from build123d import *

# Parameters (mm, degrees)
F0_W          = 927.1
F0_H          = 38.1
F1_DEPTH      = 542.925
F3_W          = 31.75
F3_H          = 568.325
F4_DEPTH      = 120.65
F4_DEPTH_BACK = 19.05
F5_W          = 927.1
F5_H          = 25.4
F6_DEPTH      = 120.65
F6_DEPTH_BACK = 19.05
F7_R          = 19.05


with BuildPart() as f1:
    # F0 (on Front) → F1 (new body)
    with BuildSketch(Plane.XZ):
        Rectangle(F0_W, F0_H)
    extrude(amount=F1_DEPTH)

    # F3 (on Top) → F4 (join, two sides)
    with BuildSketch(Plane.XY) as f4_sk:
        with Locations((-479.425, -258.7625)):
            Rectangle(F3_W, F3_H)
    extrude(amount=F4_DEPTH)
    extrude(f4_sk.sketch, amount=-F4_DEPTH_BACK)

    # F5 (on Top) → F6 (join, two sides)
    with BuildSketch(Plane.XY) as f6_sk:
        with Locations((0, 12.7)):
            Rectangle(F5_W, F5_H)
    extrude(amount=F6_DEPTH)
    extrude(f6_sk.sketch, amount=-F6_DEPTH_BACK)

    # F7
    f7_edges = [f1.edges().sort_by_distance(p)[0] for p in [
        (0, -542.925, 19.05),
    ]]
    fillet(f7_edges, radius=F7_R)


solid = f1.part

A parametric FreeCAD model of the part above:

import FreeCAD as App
import Part
import Sketcher
Q = App.Units.Quantity


def edges_at(feature, points):
    """Names of the edges that pass closest to the given points."""
    edges = feature.Shape.Edges
    near = lambda p: min(range(len(edges)), key=lambda i: edges[i].distToShape(Part.Vertex(*p))[0])
    return sorted({f"Edge{near(p) + 1}" for p in points})


def add_polygon(sketch, points):
    """Adds a closed chain of lines whose ends are joined by coincident constraints."""
    first, n = sketch.GeometryCount, len(points)
    for a, b in zip(points, points[1:] + points[:1]):
        sketch.addGeometry(Part.LineSegment(App.Vector(*a, 0), App.Vector(*b, 0)), False)
    for i in range(n):
        sketch.addConstraint(Sketcher.Constraint("Coincident", first + i, 2, first + (i + 1) % n, 1))

doc = App.newDocument("Part")
params = doc.addObject("Spreadsheet::Sheet", "Params")
for row, (alias, value) in enumerate([
    ("sketch1_width", "36.5 in"),
    ("sketch1_height", "1.5 in"),
    ("pad1_length", "21.375 in"),
    ("sketch2_width", "1.25 in"),
    ("sketch2_height", "22.375 in"),
    ("pad2_length", "4.75 in"),
    ("pad2_length2", "0.75 in"),
    ("sketch3_height", "1 in"),
    ("sketch3_width", "36.5 in"),
    ("pad3_length", "4.75 in"),
    ("pad3_length2", "0.75 in"),
    ("fillet_radius", "0.75 in"),
], start=1):
    params.set(f"A{row}", alias)
    params.set(f"B{row}", "=" + value)
    params.setAlias(f"B{row}", alias)

body = doc.addObject("PartDesign::Body", "Body")

# Sketch on XZ plane
sketch1 = doc.addObject("Sketcher::SketchObject", "Sketch")
body.addObject(sketch1)
sketch1.AttachmentSupport = (doc.XZ_Plane, [""])
sketch1.MapMode = "FlatFace"
add_polygon(sketch1, [(-464, 19), (-464, -19), (464, -19), (464, 19)])  # lines 0-3
sketch1.addConstraint(Sketcher.Constraint("Vertical", 0))
sketch1.addConstraint(Sketcher.Constraint("Horizontal", 1))
sketch1.addConstraint(Sketcher.Constraint("Vertical", 2))
sketch1.addConstraint(Sketcher.Constraint("Horizontal", 3))
sketch1.addConstraint(Sketcher.Constraint("Symmetric", 0, 2, 2, 2, -1, 1))
sketch1.addConstraint(Sketcher.Constraint("DistanceX", 1, 1, 1, 2, Q("36.5 in")))
sketch1.addConstraint(Sketcher.Constraint("DistanceY", 0, 2, 0, 1, Q("1.5 in")))
sketch1.setExpression("Constraints[9]", "Params.sketch1_width")
sketch1.setExpression("Constraints[10]", "Params.sketch1_height")
pad1 = doc.addObject("PartDesign::Pad", "Pad")
body.addObject(pad1)
pad1.Profile = sketch1
pad1.setExpression("Length", "Params.pad1_length")

# Sketch on XY plane
sketch2 = doc.addObject("Sketcher::SketchObject", "Sketch001")
body.addObject(sketch2)
sketch2.AttachmentSupport = (doc.XY_Plane, [""])
sketch2.MapMode = "FlatFace"
add_polygon(sketch2, [(-495, 25), (-495, -543), (-464, -543), (-464, 25)])  # lines 0-3
sketch2.addConstraint(Sketcher.Constraint("Vertical", 0))
sketch2.addConstraint(Sketcher.Constraint("Horizontal", 1))
sketch2.addConstraint(Sketcher.Constraint("Vertical", 2))
sketch2.addConstraint(Sketcher.Constraint("Horizontal", 3))
sketch2.addConstraint(Sketcher.Constraint("DistanceY", -1, 1, 2, 2, Q("1 in")))
sketch2.addConstraint(Sketcher.Constraint("DistanceX", 1, 1, 1, 2, Q("1.25 in")))
sketch2.addConstraint(Sketcher.Constraint("DistanceX", 0, 2, -1, 1, Q("19.5 in")))
sketch2.addConstraint(Sketcher.Constraint("DistanceY", 0, 2, 0, 1, Q("22.375 in")))
sketch2.setExpression("Constraints[9]", "Params.sketch2_width")
sketch2.setExpression("Constraints[11]", "Params.sketch2_height")
pad2 = doc.addObject("PartDesign::Pad", "Pad001")
body.addObject(pad2)
pad2.Profile = sketch2
pad2.Type = "TwoLengths"
pad2.setExpression("Length", "Params.pad2_length")
pad2.setExpression("Length2", "Params.pad2_length2")

# Sketch on XY plane
sketch3 = doc.addObject("Sketcher::SketchObject", "Sketch002")
body.addObject(sketch3)
sketch3.AttachmentSupport = (doc.XY_Plane, [""])
sketch3.MapMode = "FlatFace"
add_polygon(sketch3, [(-464, 25), (-464, 0), (464, 0), (464, 25)])  # lines 0-3
sketch3.addConstraint(Sketcher.Constraint("Vertical", 0))
sketch3.addConstraint(Sketcher.Constraint("Horizontal", 1))
sketch3.addConstraint(Sketcher.Constraint("Vertical", 2))
sketch3.addConstraint(Sketcher.Constraint("Horizontal", 3))
sketch3.addConstraint(Sketcher.Constraint("Symmetric", 0, 2, 1, 2, -1, 1))
sketch3.addConstraint(Sketcher.Constraint("DistanceY", 0, 2, 0, 1, Q("1 in")))
sketch3.addConstraint(Sketcher.Constraint("DistanceX", 1, 1, 1, 2, Q("36.5 in")))
sketch3.setExpression("Constraints[9]", "Params.sketch3_height")
sketch3.setExpression("Constraints[10]", "Params.sketch3_width")
pad3 = doc.addObject("PartDesign::Pad", "Pad002")
body.addObject(pad3)
pad3.Profile = sketch3
pad3.Type = "TwoLengths"
pad3.setExpression("Length", "Params.pad3_length")
pad3.setExpression("Length2", "Params.pad3_length2")
doc.recompute()

fillet = doc.addObject("PartDesign::Fillet", "Fillet")
body.addObject(fillet)
fillet.Base = (pad3, edges_at(pad3, [(0, -542.925, 19.05)]))
fillet.setExpression("Radius", "Params.fillet_radius")

doc.recompute()
